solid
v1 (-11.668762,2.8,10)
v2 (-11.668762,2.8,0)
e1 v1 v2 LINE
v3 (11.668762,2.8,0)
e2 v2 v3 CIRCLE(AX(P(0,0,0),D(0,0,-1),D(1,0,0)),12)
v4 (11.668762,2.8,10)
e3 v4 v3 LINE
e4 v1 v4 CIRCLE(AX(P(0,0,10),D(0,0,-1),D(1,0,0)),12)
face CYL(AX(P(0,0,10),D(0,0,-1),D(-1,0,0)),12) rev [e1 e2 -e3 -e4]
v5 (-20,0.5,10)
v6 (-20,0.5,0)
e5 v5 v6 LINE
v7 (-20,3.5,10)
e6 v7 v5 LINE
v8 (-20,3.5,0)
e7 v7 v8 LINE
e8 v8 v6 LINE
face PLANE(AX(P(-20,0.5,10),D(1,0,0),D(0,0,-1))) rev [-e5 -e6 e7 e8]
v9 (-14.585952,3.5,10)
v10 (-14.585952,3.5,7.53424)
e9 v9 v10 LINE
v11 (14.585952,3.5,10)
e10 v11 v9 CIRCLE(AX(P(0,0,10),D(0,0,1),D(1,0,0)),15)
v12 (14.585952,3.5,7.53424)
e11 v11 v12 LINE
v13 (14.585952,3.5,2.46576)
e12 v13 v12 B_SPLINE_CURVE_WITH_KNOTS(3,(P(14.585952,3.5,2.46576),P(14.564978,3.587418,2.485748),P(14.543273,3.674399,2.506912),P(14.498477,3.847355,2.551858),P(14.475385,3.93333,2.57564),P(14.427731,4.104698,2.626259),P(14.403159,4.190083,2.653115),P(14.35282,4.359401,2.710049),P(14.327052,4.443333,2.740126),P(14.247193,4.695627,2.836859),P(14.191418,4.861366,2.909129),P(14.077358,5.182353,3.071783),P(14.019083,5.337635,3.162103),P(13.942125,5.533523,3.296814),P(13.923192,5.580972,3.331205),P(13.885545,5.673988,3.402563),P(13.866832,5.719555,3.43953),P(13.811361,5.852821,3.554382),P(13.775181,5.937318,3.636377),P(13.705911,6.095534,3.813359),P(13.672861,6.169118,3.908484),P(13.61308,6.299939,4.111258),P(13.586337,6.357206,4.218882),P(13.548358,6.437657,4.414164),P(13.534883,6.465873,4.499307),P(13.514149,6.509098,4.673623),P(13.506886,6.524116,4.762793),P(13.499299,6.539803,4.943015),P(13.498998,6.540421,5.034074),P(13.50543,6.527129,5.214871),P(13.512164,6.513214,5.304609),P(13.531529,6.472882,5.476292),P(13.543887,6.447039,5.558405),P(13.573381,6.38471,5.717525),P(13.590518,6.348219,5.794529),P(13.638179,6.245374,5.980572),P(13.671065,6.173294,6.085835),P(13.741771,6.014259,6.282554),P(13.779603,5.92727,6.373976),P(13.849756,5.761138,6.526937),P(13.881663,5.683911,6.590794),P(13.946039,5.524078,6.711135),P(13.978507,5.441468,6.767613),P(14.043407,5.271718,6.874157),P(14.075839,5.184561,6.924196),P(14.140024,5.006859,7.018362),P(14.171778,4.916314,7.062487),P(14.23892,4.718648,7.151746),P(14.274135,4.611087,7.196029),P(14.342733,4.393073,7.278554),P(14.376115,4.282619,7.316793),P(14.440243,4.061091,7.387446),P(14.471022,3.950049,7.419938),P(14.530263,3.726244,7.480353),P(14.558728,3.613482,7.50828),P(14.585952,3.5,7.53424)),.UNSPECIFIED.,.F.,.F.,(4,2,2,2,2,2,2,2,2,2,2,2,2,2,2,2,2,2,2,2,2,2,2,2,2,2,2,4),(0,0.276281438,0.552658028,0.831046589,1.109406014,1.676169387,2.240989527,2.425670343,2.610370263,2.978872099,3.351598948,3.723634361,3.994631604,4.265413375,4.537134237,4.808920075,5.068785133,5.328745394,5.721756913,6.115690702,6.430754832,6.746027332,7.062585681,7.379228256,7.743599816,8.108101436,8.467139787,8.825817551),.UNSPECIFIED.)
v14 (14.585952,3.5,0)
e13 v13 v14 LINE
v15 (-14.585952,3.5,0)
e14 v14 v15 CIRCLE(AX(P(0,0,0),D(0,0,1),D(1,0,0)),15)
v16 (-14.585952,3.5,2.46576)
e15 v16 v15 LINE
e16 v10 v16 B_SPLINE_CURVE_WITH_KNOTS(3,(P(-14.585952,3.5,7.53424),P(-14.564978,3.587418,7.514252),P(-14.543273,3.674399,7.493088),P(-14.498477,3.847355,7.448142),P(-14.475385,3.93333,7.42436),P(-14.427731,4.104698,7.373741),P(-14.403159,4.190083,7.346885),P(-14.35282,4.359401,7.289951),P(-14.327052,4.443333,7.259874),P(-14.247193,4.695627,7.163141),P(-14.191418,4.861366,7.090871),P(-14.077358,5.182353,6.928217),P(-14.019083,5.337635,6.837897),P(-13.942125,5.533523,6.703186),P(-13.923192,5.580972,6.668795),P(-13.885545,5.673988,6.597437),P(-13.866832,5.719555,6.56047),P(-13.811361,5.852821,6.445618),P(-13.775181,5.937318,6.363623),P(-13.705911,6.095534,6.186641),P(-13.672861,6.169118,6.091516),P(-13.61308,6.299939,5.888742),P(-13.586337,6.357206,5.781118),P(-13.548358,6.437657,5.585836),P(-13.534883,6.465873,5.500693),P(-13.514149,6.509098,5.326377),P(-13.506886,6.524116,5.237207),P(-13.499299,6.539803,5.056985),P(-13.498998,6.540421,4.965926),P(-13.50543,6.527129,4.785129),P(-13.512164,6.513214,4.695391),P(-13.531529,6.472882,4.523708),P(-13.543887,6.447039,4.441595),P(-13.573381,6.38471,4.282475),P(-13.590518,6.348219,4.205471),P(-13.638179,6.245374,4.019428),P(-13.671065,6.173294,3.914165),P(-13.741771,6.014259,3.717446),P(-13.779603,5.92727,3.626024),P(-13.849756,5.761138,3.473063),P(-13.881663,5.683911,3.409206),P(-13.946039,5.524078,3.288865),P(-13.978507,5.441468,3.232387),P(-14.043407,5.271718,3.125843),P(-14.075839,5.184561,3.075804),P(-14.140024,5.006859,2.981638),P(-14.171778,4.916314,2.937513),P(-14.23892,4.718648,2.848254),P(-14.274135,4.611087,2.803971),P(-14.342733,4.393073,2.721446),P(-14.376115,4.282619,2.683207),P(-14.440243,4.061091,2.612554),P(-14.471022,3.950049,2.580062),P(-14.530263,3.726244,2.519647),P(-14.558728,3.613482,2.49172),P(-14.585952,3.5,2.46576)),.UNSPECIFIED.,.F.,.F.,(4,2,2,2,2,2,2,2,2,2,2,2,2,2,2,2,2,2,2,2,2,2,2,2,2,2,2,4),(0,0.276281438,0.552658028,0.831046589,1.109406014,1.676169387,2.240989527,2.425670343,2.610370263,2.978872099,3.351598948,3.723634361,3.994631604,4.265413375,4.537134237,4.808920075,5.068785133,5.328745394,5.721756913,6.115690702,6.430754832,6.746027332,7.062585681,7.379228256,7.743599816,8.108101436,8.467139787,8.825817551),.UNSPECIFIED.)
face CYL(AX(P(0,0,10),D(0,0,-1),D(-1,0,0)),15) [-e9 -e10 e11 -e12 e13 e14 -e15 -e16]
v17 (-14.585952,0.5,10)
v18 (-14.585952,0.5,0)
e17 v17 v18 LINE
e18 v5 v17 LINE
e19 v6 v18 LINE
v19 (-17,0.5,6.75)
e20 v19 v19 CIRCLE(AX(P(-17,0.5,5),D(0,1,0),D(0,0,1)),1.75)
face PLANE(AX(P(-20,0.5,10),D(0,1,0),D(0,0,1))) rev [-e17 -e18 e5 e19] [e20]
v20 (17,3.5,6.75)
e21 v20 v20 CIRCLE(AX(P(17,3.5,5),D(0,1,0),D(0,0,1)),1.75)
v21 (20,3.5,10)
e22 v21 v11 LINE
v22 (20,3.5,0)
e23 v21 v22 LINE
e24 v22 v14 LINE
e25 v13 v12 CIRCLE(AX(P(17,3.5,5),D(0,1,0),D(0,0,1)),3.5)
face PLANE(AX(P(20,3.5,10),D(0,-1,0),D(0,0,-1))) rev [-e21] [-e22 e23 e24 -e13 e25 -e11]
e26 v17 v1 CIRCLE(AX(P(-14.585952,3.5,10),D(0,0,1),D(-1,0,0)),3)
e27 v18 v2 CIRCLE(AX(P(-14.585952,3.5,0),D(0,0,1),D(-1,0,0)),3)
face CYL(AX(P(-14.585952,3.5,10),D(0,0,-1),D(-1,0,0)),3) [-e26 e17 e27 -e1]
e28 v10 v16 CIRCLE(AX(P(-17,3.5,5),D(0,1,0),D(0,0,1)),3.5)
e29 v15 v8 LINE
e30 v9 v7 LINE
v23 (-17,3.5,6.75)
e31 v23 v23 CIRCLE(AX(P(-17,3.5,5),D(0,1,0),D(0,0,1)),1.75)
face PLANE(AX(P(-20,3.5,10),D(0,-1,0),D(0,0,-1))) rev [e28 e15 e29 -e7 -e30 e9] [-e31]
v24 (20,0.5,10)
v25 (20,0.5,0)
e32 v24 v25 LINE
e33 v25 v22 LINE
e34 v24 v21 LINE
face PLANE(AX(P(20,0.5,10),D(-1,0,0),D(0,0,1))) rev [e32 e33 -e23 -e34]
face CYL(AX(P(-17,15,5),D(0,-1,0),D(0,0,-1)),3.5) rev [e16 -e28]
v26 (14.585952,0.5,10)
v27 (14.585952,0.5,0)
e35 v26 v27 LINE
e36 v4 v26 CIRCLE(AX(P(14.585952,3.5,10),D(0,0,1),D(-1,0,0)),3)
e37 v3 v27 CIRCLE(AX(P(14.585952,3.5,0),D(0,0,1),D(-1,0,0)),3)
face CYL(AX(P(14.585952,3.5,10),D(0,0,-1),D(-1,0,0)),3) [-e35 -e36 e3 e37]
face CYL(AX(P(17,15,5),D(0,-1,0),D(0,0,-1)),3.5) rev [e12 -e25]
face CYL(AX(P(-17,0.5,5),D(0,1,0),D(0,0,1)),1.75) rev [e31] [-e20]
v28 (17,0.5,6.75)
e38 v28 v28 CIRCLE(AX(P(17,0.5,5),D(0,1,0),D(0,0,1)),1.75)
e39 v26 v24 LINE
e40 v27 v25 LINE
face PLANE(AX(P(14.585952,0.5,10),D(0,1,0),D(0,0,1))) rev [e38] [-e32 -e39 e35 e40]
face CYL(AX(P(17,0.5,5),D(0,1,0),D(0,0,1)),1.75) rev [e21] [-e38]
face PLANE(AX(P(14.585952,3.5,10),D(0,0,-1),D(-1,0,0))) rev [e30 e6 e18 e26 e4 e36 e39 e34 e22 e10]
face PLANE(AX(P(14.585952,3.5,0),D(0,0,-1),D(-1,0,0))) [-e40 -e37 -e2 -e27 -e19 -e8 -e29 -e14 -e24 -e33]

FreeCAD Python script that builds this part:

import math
import FreeCAD as App
import Part
import Sketcher

doc = App.newDocument("Part")
body = doc.addObject("PartDesign::Body", "Body")

# Sketch on XY plane
sketch1 = doc.addObject("Sketcher::SketchObject", "Sketch")
body.addObject(sketch1)
sketch1.AttachmentSupport = (doc.XY_Plane, [""])
sketch1.MapMode = "FlatFace"
sketch1.addGeometry(Part.LineSegment(App.Vector(-20, 0.5, 0), App.Vector(-14.6, 0.5, 0)), False)
sketch1.addGeometry(Part.ArcOfCircle(Part.Circle(App.Vector(-14.6, 3.5, 0), App.Vector(0, 0, 1), 3), math.radians(-90), math.radians(-13)), False)
sketch1.addGeometry(Part.ArcOfCircle(Part.Circle(App.Vector(0, 0, 0), App.Vector(0, 0, 1), 12), math.radians(13), math.radians(167)), False)
sketch1.addGeometry(Part.ArcOfCircle(Part.Circle(App.Vector(14.6, 3.5, 0), App.Vector(0, 0, 1), 3), math.radians(-167), math.radians(-90)), False)
sketch1.addGeometry(Part.LineSegment(App.Vector(14.6, 0.5, 0), App.Vector(20, 0.5, 0)), False)
sketch1.addGeometry(Part.LineSegment(App.Vector(20, 0.5, 0), App.Vector(20, 3.5, 0)), False)
sketch1.addGeometry(Part.LineSegment(App.Vector(20, 3.5, 0), App.Vector(14.6, 3.5, 0)), False)
sketch1.addGeometry(Part.ArcOfCircle(Part.Circle(App.Vector(0, 0, 0), App.Vector(0, 0, 1), 15), math.radians(13), math.radians(167)), False)
sketch1.addGeometry(Part.LineSegment(App.Vector(-14.6, 3.5, 0), App.Vector(-20, 3.5, 0)), False)
sketch1.addGeometry(Part.LineSegment(App.Vector(-20, 3.5, 0), App.Vector(-20, 0.5, 0)), False)
sketch1.addConstraint(Sketcher.Constraint("Tangent", 0, 2, 1, 1))
sketch1.addConstraint(Sketcher.Constraint("Tangent", 1, 2, 2, 2))
sketch1.addConstraint(Sketcher.Constraint("Tangent", 2, 1, 3, 1))
sketch1.addConstraint(Sketcher.Constraint("Tangent", 3, 2, 4, 1))
sketch1.addConstraint(Sketcher.Constraint("Coincident", 4, 2, 5, 1))
sketch1.addConstraint(Sketcher.Constraint("Coincident", 5, 2, 6, 1))
sketch1.addConstraint(Sketcher.Constraint("Coincident", 6, 2, 7, 1))
sketch1.addConstraint(Sketcher.Constraint("Coincident", 7, 2, 8, 1))
sketch1.addConstraint(Sketcher.Constraint("Coincident", 8, 2, 9, 1))
sketch1.addConstraint(Sketcher.Constraint("Coincident", 9, 2, 0, 1))
sketch1.addConstraint(Sketcher.Constraint("Horizontal", 0))
sketch1.addConstraint(Sketcher.Constraint("Horizontal", 4))
sketch1.addConstraint(Sketcher.Constraint("Vertical", 5))
sketch1.addConstraint(Sketcher.Constraint("Horizontal", 6))
sketch1.addConstraint(Sketcher.Constraint("Horizontal", 8))
sketch1.addConstraint(Sketcher.Constraint("Vertical", 9))
sketch1.addConstraint(Sketcher.Constraint("Coincident", 2, 3, -1, 1))
sketch1.addConstraint(Sketcher.Constraint("Coincident", 7, 3, -1, 1))
sketch1.addConstraint(Sketcher.Constraint("Coincident", 6, 2, 3, 3))
sketch1.addConstraint(Sketcher.Constraint("Coincident", 7, 2, 1, 3))
sketch1.addConstraint(Sketcher.Constraint("Symmetric", 5, 2, 8, 2, -2))
sketch1.addConstraint(Sketcher.Constraint("Radius", 1, 3.0))
sketch1.addConstraint(Sketcher.Constraint("Radius", 2, 12.0))
sketch1.addConstraint(Sketcher.Constraint("DistanceX", -1, 1, 4, 2, 20.0))
sketch1.addConstraint(Sketcher.Constraint("DistanceY", -1, 1, 1, 3, 3.5))
pad1 = doc.addObject("PartDesign::Pad", "Pad")
body.addObject(pad1)
pad1.Profile = sketch1
pad1.Length = 10

# Sketch on XZ plane
sketch2 = doc.addObject("Sketcher::SketchObject", "Sketch001")
body.addObject(sketch2)
sketch2.AttachmentSupport = (doc.XZ_Plane, [""])
sketch2.MapMode = "FlatFace"
sketch2.AttachmentOffset = App.Placement(App.Vector(0, 0, -3.5), App.Rotation())
sketch2.addGeometry(Part.Circle(App.Vector(-17, 5, 0), App.Vector(0, 0, 1), 1.8), False)
sketch2.addGeometry(Part.Circle(App.Vector(17, 5, 0), App.Vector(0, 0, 1), 1.8), False)
sketch2.addConstraint(Sketcher.Constraint("Equal", 0, 1))
sketch2.addConstraint(Sketcher.Constraint("Symmetric", 0, 3, 1, 3, -2))
sketch2.addConstraint(Sketcher.Constraint("Diameter", 0, 3.5))
sketch2.addConstraint(Sketcher.Constraint("DistanceX", 0, 3, -1, 1, 17.0))
sketch2.addConstraint(Sketcher.Constraint("DistanceY", -1, 1, 0, 3, 5.0))
pocket1 = doc.addObject("PartDesign::Pocket", "Pocket")
body.addObject(pocket1)
pocket1.Profile = sketch2
pocket1.Type = "ThroughAll"
pocket1.Reversed = True

# Sketch on XZ plane
sketch3 = doc.addObject("Sketcher::SketchObject", "Sketch002")
body.addObject(sketch3)
sketch3.AttachmentSupport = (doc.XZ_Plane, [""])
sketch3.MapMode = "FlatFace"
sketch3.AttachmentOffset = App.Placement(App.Vector(0, 0, -3.5), App.Rotation())
sketch3.addGeometry(Part.Circle(App.Vector(-17, 5, 0), App.Vector(0, 0, 1), 3.5), False)
sketch3.addGeometry(Part.Circle(App.Vector(17, 5, 0), App.Vector(0, 0, 1), 3.5), False)
sketch3.addConstraint(Sketcher.Constraint("Equal", 0, 1))
sketch3.addConstraint(Sketcher.Constraint("Symmetric", 0, 3, 1, 3, -2))
sketch3.addConstraint(Sketcher.Constraint("Diameter", 0, 7.0))
sketch3.addConstraint(Sketcher.Constraint("DistanceX", 0, 3, -1, 1, 17.0))
sketch3.addConstraint(Sketcher.Constraint("DistanceY", -1, 1, 0, 3, 5.0))
pocket2 = doc.addObject("PartDesign::Pocket", "Pocket001")
body.addObject(pocket2)
pocket2.Profile = sketch3
pocket2.Type = "ThroughAll"

doc.recompute()
